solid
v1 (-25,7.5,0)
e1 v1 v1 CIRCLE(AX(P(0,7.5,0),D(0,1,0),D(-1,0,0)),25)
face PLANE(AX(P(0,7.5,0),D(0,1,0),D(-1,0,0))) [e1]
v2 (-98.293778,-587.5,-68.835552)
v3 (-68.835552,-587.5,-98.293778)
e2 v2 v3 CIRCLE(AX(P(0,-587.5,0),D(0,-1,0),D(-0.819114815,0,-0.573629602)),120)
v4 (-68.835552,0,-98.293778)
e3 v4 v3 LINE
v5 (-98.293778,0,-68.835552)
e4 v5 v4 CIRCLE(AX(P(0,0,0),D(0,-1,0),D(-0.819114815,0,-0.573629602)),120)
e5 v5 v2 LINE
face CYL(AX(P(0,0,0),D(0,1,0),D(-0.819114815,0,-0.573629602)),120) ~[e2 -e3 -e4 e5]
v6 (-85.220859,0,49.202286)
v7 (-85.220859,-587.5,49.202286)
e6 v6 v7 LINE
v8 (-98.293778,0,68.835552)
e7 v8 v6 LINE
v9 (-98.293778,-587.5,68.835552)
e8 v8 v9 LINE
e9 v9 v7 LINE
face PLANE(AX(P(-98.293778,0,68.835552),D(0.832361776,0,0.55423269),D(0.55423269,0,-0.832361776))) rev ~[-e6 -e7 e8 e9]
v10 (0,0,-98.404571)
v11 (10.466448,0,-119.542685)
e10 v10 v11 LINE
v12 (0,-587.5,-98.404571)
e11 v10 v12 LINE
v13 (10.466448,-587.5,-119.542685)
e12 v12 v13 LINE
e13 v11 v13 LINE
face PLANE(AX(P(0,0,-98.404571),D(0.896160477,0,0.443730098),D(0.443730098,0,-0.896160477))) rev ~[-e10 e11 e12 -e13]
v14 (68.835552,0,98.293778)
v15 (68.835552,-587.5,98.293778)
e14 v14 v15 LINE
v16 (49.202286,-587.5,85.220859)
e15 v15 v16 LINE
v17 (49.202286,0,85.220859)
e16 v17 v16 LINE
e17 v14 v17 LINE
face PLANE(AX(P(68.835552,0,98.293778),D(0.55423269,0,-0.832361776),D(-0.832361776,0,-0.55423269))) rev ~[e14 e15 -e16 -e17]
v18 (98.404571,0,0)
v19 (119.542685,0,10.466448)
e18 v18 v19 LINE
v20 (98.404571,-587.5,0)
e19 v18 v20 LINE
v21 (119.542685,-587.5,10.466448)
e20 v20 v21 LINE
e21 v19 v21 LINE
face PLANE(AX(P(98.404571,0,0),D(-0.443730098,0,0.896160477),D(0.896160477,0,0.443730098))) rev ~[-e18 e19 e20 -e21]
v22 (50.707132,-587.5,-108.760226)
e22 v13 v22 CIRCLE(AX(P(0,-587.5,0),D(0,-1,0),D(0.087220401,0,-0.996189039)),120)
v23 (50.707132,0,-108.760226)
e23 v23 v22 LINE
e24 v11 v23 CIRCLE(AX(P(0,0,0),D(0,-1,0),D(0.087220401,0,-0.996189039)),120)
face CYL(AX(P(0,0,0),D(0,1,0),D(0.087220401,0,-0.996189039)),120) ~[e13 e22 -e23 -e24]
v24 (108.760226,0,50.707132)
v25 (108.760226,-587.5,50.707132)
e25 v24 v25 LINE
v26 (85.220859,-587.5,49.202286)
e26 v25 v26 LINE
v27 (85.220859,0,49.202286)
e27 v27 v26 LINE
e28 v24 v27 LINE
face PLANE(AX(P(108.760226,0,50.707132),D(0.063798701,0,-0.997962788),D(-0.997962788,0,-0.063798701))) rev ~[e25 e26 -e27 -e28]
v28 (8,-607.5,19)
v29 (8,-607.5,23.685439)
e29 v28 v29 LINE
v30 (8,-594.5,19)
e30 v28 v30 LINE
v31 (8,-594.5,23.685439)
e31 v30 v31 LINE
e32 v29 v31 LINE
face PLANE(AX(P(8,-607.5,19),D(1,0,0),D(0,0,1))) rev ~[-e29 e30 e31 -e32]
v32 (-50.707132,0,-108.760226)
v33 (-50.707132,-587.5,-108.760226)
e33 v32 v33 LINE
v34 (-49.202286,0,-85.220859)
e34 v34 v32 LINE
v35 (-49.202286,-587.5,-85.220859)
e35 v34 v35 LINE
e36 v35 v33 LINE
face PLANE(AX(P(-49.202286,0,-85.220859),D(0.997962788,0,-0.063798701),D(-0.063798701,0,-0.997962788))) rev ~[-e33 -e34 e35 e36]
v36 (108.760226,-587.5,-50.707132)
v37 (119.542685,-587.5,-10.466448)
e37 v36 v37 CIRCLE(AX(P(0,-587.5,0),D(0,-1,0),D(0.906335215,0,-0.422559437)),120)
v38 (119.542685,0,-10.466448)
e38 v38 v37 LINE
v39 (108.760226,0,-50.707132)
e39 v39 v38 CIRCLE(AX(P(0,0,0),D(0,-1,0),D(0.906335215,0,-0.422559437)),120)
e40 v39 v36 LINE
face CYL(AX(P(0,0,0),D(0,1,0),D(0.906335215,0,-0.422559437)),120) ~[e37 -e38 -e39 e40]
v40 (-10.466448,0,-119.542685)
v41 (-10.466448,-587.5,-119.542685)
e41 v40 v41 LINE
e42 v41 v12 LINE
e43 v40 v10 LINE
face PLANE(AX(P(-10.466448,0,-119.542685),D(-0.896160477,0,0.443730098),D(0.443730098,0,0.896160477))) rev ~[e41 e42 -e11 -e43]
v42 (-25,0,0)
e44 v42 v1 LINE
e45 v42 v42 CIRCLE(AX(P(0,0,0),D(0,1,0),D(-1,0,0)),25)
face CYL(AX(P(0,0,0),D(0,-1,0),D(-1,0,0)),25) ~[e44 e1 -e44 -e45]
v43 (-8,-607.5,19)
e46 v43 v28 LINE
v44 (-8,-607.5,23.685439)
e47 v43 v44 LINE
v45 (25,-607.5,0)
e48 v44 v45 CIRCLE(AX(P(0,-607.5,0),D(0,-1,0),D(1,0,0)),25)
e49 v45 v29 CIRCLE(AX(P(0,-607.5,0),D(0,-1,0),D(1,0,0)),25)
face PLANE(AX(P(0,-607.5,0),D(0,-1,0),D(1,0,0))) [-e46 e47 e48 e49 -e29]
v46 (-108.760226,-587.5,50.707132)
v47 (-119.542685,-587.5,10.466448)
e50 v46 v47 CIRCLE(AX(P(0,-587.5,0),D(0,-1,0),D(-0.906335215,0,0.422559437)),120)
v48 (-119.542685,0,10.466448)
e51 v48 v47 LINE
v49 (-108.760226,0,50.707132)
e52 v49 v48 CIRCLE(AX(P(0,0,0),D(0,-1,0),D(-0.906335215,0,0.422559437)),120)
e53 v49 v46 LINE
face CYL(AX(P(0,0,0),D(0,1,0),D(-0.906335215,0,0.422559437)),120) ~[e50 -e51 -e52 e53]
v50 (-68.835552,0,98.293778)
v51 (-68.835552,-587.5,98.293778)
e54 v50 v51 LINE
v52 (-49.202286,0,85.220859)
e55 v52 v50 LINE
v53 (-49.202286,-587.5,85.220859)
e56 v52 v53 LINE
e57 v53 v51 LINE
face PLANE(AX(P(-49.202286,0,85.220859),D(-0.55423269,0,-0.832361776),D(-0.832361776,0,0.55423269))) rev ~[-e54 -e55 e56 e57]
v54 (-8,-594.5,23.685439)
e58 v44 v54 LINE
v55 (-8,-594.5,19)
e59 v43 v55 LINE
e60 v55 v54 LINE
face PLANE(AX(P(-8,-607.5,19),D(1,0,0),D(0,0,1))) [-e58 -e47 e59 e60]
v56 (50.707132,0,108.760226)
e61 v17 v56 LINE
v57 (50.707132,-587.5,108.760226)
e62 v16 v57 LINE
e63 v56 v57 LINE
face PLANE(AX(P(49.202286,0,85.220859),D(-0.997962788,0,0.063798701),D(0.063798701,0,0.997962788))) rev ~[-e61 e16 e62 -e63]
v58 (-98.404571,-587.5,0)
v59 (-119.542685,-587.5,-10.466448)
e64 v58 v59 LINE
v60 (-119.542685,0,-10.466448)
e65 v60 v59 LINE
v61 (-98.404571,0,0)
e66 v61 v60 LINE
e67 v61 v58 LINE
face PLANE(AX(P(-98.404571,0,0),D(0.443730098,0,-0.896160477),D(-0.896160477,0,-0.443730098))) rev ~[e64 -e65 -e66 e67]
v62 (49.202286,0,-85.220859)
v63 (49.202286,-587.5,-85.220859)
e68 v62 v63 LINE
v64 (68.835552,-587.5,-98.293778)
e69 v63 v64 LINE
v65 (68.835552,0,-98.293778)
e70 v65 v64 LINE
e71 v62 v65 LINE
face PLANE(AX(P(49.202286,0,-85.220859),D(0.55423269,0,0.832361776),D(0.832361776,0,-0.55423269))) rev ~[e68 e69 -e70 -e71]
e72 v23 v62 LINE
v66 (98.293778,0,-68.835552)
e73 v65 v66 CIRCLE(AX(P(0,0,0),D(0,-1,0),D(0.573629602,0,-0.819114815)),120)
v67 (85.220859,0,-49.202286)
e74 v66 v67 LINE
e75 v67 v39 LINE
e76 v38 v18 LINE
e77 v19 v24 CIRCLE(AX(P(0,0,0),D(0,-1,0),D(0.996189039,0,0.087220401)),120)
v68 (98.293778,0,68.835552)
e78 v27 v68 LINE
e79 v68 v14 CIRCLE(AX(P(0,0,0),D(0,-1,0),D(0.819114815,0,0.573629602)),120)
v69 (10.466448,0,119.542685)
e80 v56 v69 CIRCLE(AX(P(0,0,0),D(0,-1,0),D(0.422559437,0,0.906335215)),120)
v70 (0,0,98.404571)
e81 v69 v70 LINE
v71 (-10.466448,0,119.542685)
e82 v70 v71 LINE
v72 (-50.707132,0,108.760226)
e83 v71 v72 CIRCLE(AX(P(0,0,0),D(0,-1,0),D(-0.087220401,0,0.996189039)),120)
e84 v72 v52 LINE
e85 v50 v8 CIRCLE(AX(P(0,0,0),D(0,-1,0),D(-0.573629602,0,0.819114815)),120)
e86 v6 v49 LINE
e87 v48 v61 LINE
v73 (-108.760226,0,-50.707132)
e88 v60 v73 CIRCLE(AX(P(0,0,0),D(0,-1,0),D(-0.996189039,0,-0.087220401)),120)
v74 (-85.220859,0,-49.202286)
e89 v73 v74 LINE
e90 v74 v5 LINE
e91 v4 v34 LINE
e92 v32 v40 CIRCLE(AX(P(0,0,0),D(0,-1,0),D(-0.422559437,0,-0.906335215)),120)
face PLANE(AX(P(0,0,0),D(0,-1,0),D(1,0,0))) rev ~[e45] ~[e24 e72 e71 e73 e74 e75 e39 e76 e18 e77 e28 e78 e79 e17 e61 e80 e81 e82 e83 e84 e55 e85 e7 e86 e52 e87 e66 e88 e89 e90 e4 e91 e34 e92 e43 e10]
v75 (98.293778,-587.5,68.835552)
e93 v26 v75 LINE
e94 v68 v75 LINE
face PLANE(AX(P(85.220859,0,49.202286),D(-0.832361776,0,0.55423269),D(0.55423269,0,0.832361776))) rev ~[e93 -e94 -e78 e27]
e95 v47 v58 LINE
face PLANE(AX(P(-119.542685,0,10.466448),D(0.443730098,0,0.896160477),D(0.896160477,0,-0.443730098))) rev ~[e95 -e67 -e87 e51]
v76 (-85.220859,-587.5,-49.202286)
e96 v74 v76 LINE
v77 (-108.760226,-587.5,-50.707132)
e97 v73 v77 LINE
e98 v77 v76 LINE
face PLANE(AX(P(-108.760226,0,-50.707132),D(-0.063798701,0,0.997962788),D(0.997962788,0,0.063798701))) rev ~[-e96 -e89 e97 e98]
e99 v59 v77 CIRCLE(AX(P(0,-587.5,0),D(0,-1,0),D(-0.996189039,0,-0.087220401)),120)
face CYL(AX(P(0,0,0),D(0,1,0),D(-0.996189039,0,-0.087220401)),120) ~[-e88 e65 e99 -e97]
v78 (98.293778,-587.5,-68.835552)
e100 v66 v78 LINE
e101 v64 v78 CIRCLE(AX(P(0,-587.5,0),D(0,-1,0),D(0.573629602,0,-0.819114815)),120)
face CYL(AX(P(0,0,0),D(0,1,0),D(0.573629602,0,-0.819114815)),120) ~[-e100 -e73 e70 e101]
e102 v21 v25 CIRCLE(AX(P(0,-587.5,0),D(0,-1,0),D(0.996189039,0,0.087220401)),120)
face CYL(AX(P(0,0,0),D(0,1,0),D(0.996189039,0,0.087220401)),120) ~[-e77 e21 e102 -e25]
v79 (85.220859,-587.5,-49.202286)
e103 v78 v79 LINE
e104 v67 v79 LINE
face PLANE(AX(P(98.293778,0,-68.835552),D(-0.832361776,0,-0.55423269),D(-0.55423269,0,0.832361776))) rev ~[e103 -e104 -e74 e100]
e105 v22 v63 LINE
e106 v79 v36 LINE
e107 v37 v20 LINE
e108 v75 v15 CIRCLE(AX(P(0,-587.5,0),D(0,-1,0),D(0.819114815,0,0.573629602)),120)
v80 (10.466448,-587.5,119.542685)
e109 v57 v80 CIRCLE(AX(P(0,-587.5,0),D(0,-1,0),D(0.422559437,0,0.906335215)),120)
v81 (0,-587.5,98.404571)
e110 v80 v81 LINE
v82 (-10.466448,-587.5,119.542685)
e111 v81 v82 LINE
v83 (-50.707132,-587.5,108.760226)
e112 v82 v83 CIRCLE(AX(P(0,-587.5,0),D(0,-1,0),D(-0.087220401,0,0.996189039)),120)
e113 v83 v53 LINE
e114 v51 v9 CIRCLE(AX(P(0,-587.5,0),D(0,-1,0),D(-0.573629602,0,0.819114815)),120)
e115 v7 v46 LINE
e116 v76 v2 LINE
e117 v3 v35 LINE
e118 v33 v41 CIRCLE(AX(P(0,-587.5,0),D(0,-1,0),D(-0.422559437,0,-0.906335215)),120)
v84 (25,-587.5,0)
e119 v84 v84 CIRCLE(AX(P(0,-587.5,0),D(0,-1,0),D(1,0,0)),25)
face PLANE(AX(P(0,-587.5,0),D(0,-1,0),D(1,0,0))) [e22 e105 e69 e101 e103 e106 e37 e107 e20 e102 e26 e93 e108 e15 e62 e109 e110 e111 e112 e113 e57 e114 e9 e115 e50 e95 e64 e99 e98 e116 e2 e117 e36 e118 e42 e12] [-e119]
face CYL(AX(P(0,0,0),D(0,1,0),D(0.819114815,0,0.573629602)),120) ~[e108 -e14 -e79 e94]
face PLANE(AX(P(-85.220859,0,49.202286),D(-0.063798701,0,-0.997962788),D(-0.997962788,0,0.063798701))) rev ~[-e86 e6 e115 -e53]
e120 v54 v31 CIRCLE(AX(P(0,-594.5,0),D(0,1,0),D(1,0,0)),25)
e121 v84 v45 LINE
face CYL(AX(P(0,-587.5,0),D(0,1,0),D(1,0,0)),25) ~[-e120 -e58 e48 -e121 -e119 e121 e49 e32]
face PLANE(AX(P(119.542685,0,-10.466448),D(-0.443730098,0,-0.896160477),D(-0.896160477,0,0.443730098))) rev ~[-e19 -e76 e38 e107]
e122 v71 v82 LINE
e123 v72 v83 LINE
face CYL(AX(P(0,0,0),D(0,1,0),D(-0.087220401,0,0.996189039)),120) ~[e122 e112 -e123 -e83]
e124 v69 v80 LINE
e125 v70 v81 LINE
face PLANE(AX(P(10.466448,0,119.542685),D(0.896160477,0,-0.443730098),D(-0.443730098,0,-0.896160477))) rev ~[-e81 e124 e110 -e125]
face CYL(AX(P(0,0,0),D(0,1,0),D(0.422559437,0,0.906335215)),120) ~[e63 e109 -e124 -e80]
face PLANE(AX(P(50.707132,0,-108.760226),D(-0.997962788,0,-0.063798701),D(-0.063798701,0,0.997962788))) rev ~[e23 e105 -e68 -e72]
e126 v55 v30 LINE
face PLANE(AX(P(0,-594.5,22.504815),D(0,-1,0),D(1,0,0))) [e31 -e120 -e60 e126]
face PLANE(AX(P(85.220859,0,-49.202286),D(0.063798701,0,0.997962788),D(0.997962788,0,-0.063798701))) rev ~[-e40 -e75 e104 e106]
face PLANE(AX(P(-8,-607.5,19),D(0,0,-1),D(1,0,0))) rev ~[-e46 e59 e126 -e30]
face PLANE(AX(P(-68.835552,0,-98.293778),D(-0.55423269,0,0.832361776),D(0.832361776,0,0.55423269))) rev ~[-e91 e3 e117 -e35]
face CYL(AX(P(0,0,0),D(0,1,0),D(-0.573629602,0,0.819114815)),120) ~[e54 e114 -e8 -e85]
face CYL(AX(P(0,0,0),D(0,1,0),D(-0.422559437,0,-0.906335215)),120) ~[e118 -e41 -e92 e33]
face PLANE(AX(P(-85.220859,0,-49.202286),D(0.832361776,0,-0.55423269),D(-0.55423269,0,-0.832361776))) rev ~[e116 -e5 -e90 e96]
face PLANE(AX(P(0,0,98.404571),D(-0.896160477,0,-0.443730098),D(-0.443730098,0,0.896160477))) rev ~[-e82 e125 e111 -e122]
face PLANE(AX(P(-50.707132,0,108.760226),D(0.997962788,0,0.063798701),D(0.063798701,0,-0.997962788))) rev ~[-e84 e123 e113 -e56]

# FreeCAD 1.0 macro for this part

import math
import FreeCAD as App
import Part
import Sketcher

V = App.Vector
Q = App.Units.Quantity


def add_polygon(sketch, points):
    """Adds a closed chain of lines whose ends are joined by coincident constraints."""
    first, n = sketch.GeometryCount, len(points)
    for a, b in zip(points, points[1:] + points[:1]):
        sketch.addGeometry(Part.LineSegment(App.Vector(*a, 0), App.Vector(*b, 0)), False)
    for i in range(n):
        sketch.addConstraint(Sketcher.Constraint("Coincident", first + i, 2, first + (i + 1) % n, 1))

doc = App.newDocument("Part")
body = doc.addObject("PartDesign::Body", "Body")

# Sketch on XZ plane
sketch1 = body.newObject("Sketcher::SketchObject", "Sketch")
sketch1.AttachmentSupport = (doc.getObject("XZ_Plane"), [""])
sketch1.MapMode = "FlatFace"
sketch1.addGeometry([
    Part.LineSegment(V(98, 0, 0), V(120, 10, 0)),  # 0
    Part.ArcOfCircle(Part.Circle(V(0, 0, 0), V(0, 0, 1), 120), math.radians(5), math.radians(25)),  # 1
    Part.LineSegment(V(109, 51, 0), V(85, 49, 0)),  # 2
    Part.LineSegment(V(85, 49, 0), V(98, 69, 0)),  # 3
    Part.ArcOfCircle(Part.Circle(V(0, 0, 0), V(0, 0, 1), 120), math.radians(35), math.radians(55)),  # 4
    Part.LineSegment(V(69, 98, 0), V(49, 85, 0)),  # 5
    Part.LineSegment(V(49, 85, 0), V(51, 109, 0)),  # 6
    Part.ArcOfCircle(Part.Circle(V(0, 0, 0), V(0, 0, 1), 120), math.radians(65), math.radians(85)),  # 7
    Part.LineSegment(V(10, 120, 0), V(0, 98, 0)),  # 8
    Part.LineSegment(V(0, 98, 0), V(-10, 120, 0)),  # 9
    Part.ArcOfCircle(Part.Circle(V(0, 0, 0), V(0, 0, 1), 120), math.radians(95), math.radians(115)),  # 10
    Part.LineSegment(V(-51, 109, 0), V(-49, 85, 0)),  # 11
    Part.LineSegment(V(-49, 85, 0), V(-69, 98, 0)),  # 12
    Part.ArcOfCircle(Part.Circle(V(0, 0, 0), V(0, 0, 1), 120), math.radians(125), math.radians(145)),  # 13
    Part.LineSegment(V(-98, 69, 0), V(-85, 49, 0)),  # 14
    Part.LineSegment(V(-85, 49, 0), V(-109, 51, 0)),  # 15
    Part.ArcOfCircle(Part.Circle(V(0, 0, 0), V(0, 0, 1), 120), math.radians(155), math.radians(175)),  # 16
    Part.LineSegment(V(-120, 10, 0), V(-98, 0, 0)),  # 17
    Part.LineSegment(V(-98, 0, 0), V(-120, -10, 0)),  # 18
    Part.ArcOfCircle(Part.Circle(V(0, 0, 0), V(0, 0, 1), 120), math.radians(-175), math.radians(-155)),  # 19
    Part.LineSegment(V(-109, -51, 0), V(-85, -49, 0)),  # 20
    Part.LineSegment(V(-85, -49, 0), V(-98, -69, 0)),  # 21
    Part.ArcOfCircle(Part.Circle(V(0, 0, 0), V(0, 0, 1), 120), math.radians(-145), math.radians(-125)),  # 22
    Part.LineSegment(V(-69, -98, 0), V(-49, -85, 0)),  # 23
    Part.LineSegment(V(-49, -85, 0), V(-51, -109, 0)),  # 24
    Part.ArcOfCircle(Part.Circle(V(0, 0, 0), V(0, 0, 1), 120), math.radians(-115), math.radians(-95)),  # 25
    Part.LineSegment(V(-10, -120, 0), V(0, -98, 0)),  # 26
    Part.LineSegment(V(0, -98, 0), V(10, -120, 0)),  # 27
    Part.ArcOfCircle(Part.Circle(V(0, 0, 0), V(0, 0, 1), 120), math.radians(-85), math.radians(-65)),  # 28
    Part.LineSegment(V(51, -109, 0), V(49, -85, 0)),  # 29
    Part.LineSegment(V(49, -85, 0), V(69, -98, 0)),  # 30
    Part.ArcOfCircle(Part.Circle(V(0, 0, 0), V(0, 0, 1), 120), math.radians(-55), math.radians(-35)),  # 31
    Part.LineSegment(V(98, -69, 0), V(85, -49, 0)),  # 32
    Part.LineSegment(V(85, -49, 0), V(109, -51, 0)),  # 33
    Part.ArcOfCircle(Part.Circle(V(0, 0, 0), V(0, 0, 1), 120), math.radians(-25), math.radians(-5)),  # 34
    Part.LineSegment(V(120, -10, 0), V(98, 0, 0)),  # 35
], False)
sketch1.addConstraint([
    Sketcher.Constraint("Coincident", 0, 2, 1, 1),
    Sketcher.Constraint("Coincident", 1, 2, 2, 1),
    Sketcher.Constraint("Coincident", 2, 2, 3, 1),
    Sketcher.Constraint("Coincident", 3, 2, 4, 1),
    Sketcher.Constraint("Coincident", 4, 2, 5, 1),
    Sketcher.Constraint("Coincident", 5, 2, 6, 1),
    Sketcher.Constraint("Coincident", 6, 2, 7, 1),
    Sketcher.Constraint("Coincident", 7, 2, 8, 1),
    Sketcher.Constraint("Coincident", 8, 2, 9, 1),
    Sketcher.Constraint("Coincident", 9, 2, 10, 1),
    Sketcher.Constraint("Coincident", 10, 2, 11, 1),
    Sketcher.Constraint("Coincident", 11, 2, 12, 1),
    Sketcher.Constraint("Coincident", 12, 2, 13, 1),
    Sketcher.Constraint("Coincident", 13, 2, 14, 1),
    Sketcher.Constraint("Coincident", 14, 2, 15, 1),
    Sketcher.Constraint("Coincident", 15, 2, 16, 1),
    Sketcher.Constraint("Coincident", 16, 2, 17, 1),
    Sketcher.Constraint("Coincident", 17, 2, 18, 1),
    Sketcher.Constraint("Coincident", 18, 2, 19, 1),
    Sketcher.Constraint("Coincident", 19, 2, 20, 1),
    Sketcher.Constraint("Coincident", 20, 2, 21, 1),
    Sketcher.Constraint("Coincident", 21, 2, 22, 1),
    Sketcher.Constraint("Coincident", 22, 2, 23, 1),
    Sketcher.Constraint("Coincident", 23, 2, 24, 1),
    Sketcher.Constraint("Coincident", 24, 2, 25, 1),
    Sketcher.Constraint("Coincident", 25, 2, 26, 1),
    Sketcher.Constraint("Coincident", 26, 2, 27, 1),
    Sketcher.Constraint("Coincident", 27, 2, 28, 1),
    Sketcher.Constraint("Coincident", 28, 2, 29, 1),
    Sketcher.Constraint("Coincident", 29, 2, 30, 1),
    Sketcher.Constraint("Coincident", 30, 2, 31, 1),
    Sketcher.Constraint("Coincident", 31, 2, 32, 1),
    Sketcher.Constraint("Coincident", 32, 2, 33, 1),
    Sketcher.Constraint("Coincident", 33, 2, 34, 1),
    Sketcher.Constraint("Coincident", 34, 2, 35, 1),
    Sketcher.Constraint("Coincident", 35, 2, 0, 1),
    Sketcher.Constraint("Coincident", 1, 3, -1, 1),
    Sketcher.Constraint("Coincident", 4, 3, -1, 1),
    Sketcher.Constraint("Coincident", 7, 3, -1, 1),
    Sketcher.Constraint("Coincident", 10, 3, -1, 1),
    Sketcher.Constraint("Coincident", 13, 3, -1, 1),
    Sketcher.Constraint("Coincident", 16, 3, -1, 1),
    Sketcher.Constraint("Coincident", 19, 3, -1, 1),
    Sketcher.Constraint("Coincident", 22, 3, -1, 1),
    Sketcher.Constraint("Coincident", 25, 3, -1, 1),
    Sketcher.Constraint("Coincident", 28, 3, -1, 1),
    Sketcher.Constraint("Coincident", 31, 3, -1, 1),
    Sketcher.Constraint("Coincident", 34, 3, -1, 1),
    Sketcher.Constraint("Equal", 1, 4),
    Sketcher.Constraint("Equal", 4, 7),
    Sketcher.Constraint("Equal", 7, 10),
    Sketcher.Constraint("Equal", 10, 13),
    Sketcher.Constraint("Equal", 13, 16),
    Sketcher.Constraint("Equal", 16, 19),
    Sketcher.Constraint("Equal", 19, 22),
    Sketcher.Constraint("Equal", 22, 25),
    Sketcher.Constraint("Equal", 25, 28),
    Sketcher.Constraint("Equal", 28, 31),
    Sketcher.Constraint("Equal", 31, 34),
    Sketcher.Constraint("Symmetric", 2, 2, 20, 2, -1, 1),
    Sketcher.Constraint("Symmetric", 5, 2, 23, 2, -1, 1),
    Sketcher.Constraint("Symmetric", 8, 2, 26, 2, -1, 1),
    Sketcher.Constraint("Symmetric", 11, 2, 29, 2, -1, 1),
    Sketcher.Constraint("Symmetric", 14, 2, 32, 2, -1, 1),
    Sketcher.Constraint("Symmetric", 17, 2, 35, 2, -1, 1),
    Sketcher.Constraint("Symmetric", 5, 2, 11, 2, -2),
    Sketcher.Constraint("Symmetric", 2, 2, 14, 2, -2),
    Sketcher.Constraint("PointOnObject", 8, 2, -2),
    Sketcher.Constraint("PointOnObject", 17, 2, -1),
    Sketcher.Constraint("Perpendicular", 0, 9),
    Sketcher.Constraint("Perpendicular", 2, 11),
    Sketcher.Constraint("Perpendicular", 3, 12),
    Sketcher.Constraint("Perpendicular", 5, 14),
    Sketcher.Constraint("Perpendicular", 6, 15),
    Sketcher.Constraint("Perpendicular", 8, 17),
    Sketcher.Constraint("Perpendicular", 9, 18),
    Sketcher.Constraint("Perpendicular", 11, 20),
    Sketcher.Constraint("Perpendicular", 12, 21),
    Sketcher.Constraint("Perpendicular", 14, 23),
    Sketcher.Constraint("Perpendicular", 15, 24),
    Sketcher.Constraint("Perpendicular", 17, 26),
    Sketcher.Constraint("Perpendicular", 18, 27),
    Sketcher.Constraint("Perpendicular", 20, 29),
    Sketcher.Constraint("Perpendicular", 21, 30),
    Sketcher.Constraint("Perpendicular", 23, 32),
    Sketcher.Constraint("Perpendicular", 24, 33),
    Sketcher.Constraint("Perpendicular", 26, 35),
    Sketcher.Constraint("Horizontal", 7, 2, 9, 2),
    Sketcher.Constraint("Horizontal", 6, 2, 10, 2),
    Sketcher.Constraint("Horizontal", 4, 2, 12, 2),
    Sketcher.Constraint("Equal", 0, 2),
    Sketcher.Constraint("Equal", 2, 3),
    Sketcher.Constraint("Equal", 3, 5),
    Sketcher.Constraint("Equal", 5, 6),
    Sketcher.Constraint("Equal", 6, 8),
    Sketcher.Constraint("Radius", 1, Q("120 mm")),
    Sketcher.Constraint("DistanceX", 9, 2, 4, 2, Q("79.302 mm")),
    Sketcher.Constraint("DistanceY", 2, 2, 7, 2, Q("70.340399 mm")),
    Sketcher.Constraint("Distance", 0, Q("23.58742 mm")),
    Sketcher.Constraint("DistanceY", -1, 1, 0, 2, Q("10.466448 mm")),
])
pad1 = body.newObject("PartDesign::Pad", "Pad")
pad1.Profile = sketch1
pad1.Length = 587.5

# Sketch on XZ plane
sketch2 = body.newObject("Sketcher::SketchObject", "Sketch001")
sketch2.AttachmentSupport = (doc.getObject("XZ_Plane"), [""])
sketch2.MapMode = "FlatFace"
sketch2.addGeometry(Part.Circle(V(0, 0, 0), V(0, 0, 1), 25), False)
sketch2.addConstraint([
    Sketcher.Constraint("Coincident", 0, 3, -1, 1),
    Sketcher.Constraint("Diameter", 0, Q("50 mm")),
])
pad2 = body.newObject("PartDesign::Pad", "Pad001")
pad2.Profile = sketch2
pad2.Length = 7.5
pad2.Reversed = True

# Sketch on XZ plane
sketch3 = body.newObject("Sketcher::SketchObject", "Sketch002")
sketch3.AttachmentSupport = (doc.getObject("XZ_Plane"), [""])
sketch3.MapMode = "FlatFace"
sketch3.AttachmentOffset = App.Placement(V(0, 0, 587.5), App.Rotation())
sketch3.addGeometry(Part.Circle(V(0, 0, 0), V(0, 0, 1), 25), False)
sketch3.addConstraint([
    Sketcher.Constraint("Coincident", 0, 3, -1, 1),
    Sketcher.Constraint("Diameter", 0, Q("50 mm")),
])
pad3 = body.newObject("PartDesign::Pad", "Pad002")
pad3.Profile = sketch3
pad3.Length = 20

# Sketch on XZ plane
sketch4 = body.newObject("Sketcher::SketchObject", "Sketch003")
sketch4.AttachmentSupport = (doc.getObject("XZ_Plane"), [""])
sketch4.MapMode = "FlatFace"
sketch4.AttachmentOffset = App.Placement(V(0, 0, 607.5), App.Rotation())
add_polygon(sketch4, [(-8, 26), (-8, 19), (8, 19), (8, 26)])  # lines 0-3
sketch4.addConstraint([
    Sketcher.Constraint("Vertical", 0),
    Sketcher.Constraint("Horizontal", 1),
    Sketcher.Constraint("Vertical", 2),
    Sketcher.Constraint("Horizontal", 3),
    Sketcher.Constraint("DistanceX", 1, 1, 1, 2, Q("16 mm")),
    Sketcher.Constraint("DistanceX", 0, 2, -1, 1, Q("8 mm")),
    Sketcher.Constraint("DistanceY", -1, 1, 0, 2, Q("19 mm")),
    Sketcher.Constraint("DistanceY", 0, 2, 0, 1, Q("7.00963 mm")),
])
pocket1 = body.newObject("PartDesign::Pocket", "Pocket")
pocket1.Profile = sketch4
pocket1.Length = 13

doc.recompute()
